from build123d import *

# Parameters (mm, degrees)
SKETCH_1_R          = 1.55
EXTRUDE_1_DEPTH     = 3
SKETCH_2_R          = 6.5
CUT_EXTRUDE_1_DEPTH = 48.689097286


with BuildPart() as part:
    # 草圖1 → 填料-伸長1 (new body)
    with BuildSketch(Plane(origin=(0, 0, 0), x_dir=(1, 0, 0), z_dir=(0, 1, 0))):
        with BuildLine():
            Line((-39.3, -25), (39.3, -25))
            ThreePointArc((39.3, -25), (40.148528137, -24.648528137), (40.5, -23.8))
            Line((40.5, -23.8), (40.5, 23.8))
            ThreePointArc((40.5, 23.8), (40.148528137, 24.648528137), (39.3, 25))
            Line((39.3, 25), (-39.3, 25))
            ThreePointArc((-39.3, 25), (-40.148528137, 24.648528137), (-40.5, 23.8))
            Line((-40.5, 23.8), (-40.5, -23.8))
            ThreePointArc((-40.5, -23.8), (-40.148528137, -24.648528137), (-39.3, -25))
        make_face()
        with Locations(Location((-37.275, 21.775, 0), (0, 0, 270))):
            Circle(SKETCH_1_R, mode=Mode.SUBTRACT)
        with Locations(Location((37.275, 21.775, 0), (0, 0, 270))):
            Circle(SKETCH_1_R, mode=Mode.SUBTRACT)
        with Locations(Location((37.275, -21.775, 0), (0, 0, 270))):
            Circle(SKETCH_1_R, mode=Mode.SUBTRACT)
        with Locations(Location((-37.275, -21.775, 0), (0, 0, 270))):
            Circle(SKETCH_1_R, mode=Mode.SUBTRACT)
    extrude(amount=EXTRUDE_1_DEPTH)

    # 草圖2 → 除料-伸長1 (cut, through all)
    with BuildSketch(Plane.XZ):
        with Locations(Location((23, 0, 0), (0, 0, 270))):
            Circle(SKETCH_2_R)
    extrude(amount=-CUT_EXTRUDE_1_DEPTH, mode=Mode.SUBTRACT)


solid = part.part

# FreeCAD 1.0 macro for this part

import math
import FreeCAD as App
import Part
import Sketcher
from FreeCAD import Vector
Q = App.Units.Quantity

doc = App.newDocument("Part")
body = doc.addObject("PartDesign::Body", "Body")

sketch1 = doc.addObject("Sketcher::SketchObject", "Sketch")
body.addObject(sketch1)
sketch1.AttachmentSupport = (doc.XZ_Plane, [""])
sketch1.MapMode = "FlatFace"
sketch1.addGeometry(Part.LineSegment(Vector(-39.3, 25, 0), Vector(39.3, 25, 0)), False)
sketch1.addGeometry(Part.ArcOfCircle(Part.Circle(Vector(39.3, 23.8, 0), Vector(0, 0, 1), 1.2), math.radians(0), math.radians(90)), False)
sketch1.addGeometry(Part.LineSegment(Vector(40.5, 23.8, 0), Vector(40.5, -23.8, 0)), False)
sketch1.addGeometry(Part.ArcOfCircle(Part.Circle(Vector(39.3, -23.8, 0), Vector(0, 0, 1), 1.2), math.radians(-90), math.radians(0)), False)
sketch1.addGeometry(Part.LineSegment(Vector(39.3, -25, 0), Vector(-39.3, -25, 0)), False)
sketch1.addGeometry(Part.ArcOfCircle(Part.Circle(Vector(-39.3, -23.8, 0), Vector(0, 0, 1), 1.2), math.radians(-180), math.radians(-90)), False)
sketch1.addGeometry(Part.LineSegment(Vector(-40.5, -23.8, 0), Vector(-40.5, 23.8, 0)), False)
sketch1.addGeometry(Part.ArcOfCircle(Part.Circle(Vector(-39.3, 23.8, 0), Vector(0, 0, 1), 1.2), math.radians(90), math.radians(180)), False)
sketch1.addGeometry(Part.Circle(Vector(-37.275, 21.775, 0), Vector(0, 0, 1), 1.55), False)
sketch1.addGeometry(Part.Circle(Vector(37.275, 21.775, 0), Vector(0, 0, 1), 1.55), False)
sketch1.addGeometry(Part.Circle(Vector(-37.275, -21.775, 0), Vector(0, 0, 1), 1.55), False)
sketch1.addGeometry(Part.Circle(Vector(37.275, -21.775, 0), Vector(0, 0, 1), 1.55), False)
sketch1.addConstraint(Sketcher.Constraint("Tangent", 0, 2, 1, 2))
sketch1.addConstraint(Sketcher.Constraint("Tangent", 1, 1, 2, 1))
sketch1.addConstraint(Sketcher.Constraint("Tangent", 2, 2, 3, 2))
sketch1.addConstraint(Sketcher.Constraint("Tangent", 3, 1, 4, 1))
sketch1.addConstraint(Sketcher.Constraint("Tangent", 4, 2, 5, 2))
sketch1.addConstraint(Sketcher.Constraint("Tangent", 5, 1, 6, 1))
sketch1.addConstraint(Sketcher.Constraint("Tangent", 6, 2, 7, 2))
sketch1.addConstraint(Sketcher.Constraint("Tangent", 7, 1, 0, 1))
sketch1.addConstraint(Sketcher.Constraint("Horizontal", 0))
sketch1.addConstraint(Sketcher.Constraint("Vertical", 2))
sketch1.addConstraint(Sketcher.Constraint("Horizontal", 4))
sketch1.addConstraint(Sketcher.Constraint("Vertical", 6))
sketch1.addConstraint(Sketcher.Constraint("Equal", 1, 3))
sketch1.addConstraint(Sketcher.Constraint("Equal", 3, 5))
sketch1.addConstraint(Sketcher.Constraint("Equal", 5, 7))
sketch1.addConstraint(Sketcher.Constraint("Equal", 8, 9))
sketch1.addConstraint(Sketcher.Constraint("Equal", 9, 10))
sketch1.addConstraint(Sketcher.Constraint("Equal", 10, 11))
sketch1.addConstraint(Sketcher.Constraint("Symmetric", 1, 3, 5, 3, -1, 1))
sketch1.addConstraint(Sketcher.Constraint("Symmetric", 9, 3, 10, 3, -1, 1))
sketch1.addConstraint(Sketcher.Constraint("Symmetric", 8, 3, 11, 3, -1, 1))
sketch1.addConstraint(Sketcher.Constraint("Symmetric", 8, 3, 9, 3, -2))
sketch1.addConstraint(Sketcher.Constraint("Diameter", 8, Q("3.1 mm")))
sketch1.addConstraint(Sketcher.Constraint("Radius", 1, Q("1.2 mm")))
sketch1.addConstraint(Sketcher.Constraint("DistanceX", 0, 1, 0, 2, Q("78.6 mm")))
sketch1.addConstraint(Sketcher.Constraint("DistanceY", 2, 2, 2, 1, Q("47.6 mm")))
sketch1.addConstraint(Sketcher.Constraint("DistanceX", 8, 3, 9, 3, Q("74.55 mm")))
sketch1.addConstraint(Sketcher.Constraint("DistanceY", 10, 3, 8, 3, Q("43.55 mm")))
pad1 = doc.addObject("PartDesign::Pad", "Pad")
body.addObject(pad1)
pad1.Profile = sketch1
pad1.Length = 3
pad1.Reversed = True

sketch2 = doc.addObject("Sketcher::SketchObject", "Sketch001")
body.addObject(sketch2)
sketch2.AttachmentSupport = (doc.XZ_Plane, [""])
sketch2.MapMode = "FlatFace"
sketch2.addGeometry(Part.Circle(Vector(23, 0, 0), Vector(0, 0, 1), 6.5), False)
sketch2.addConstraint(Sketcher.Constraint("PointOnObject", 0, 3, -1))
sketch2.addConstraint(Sketcher.Constraint("Diameter", 0, Q("13 mm")))
sketch2.addConstraint(Sketcher.Constraint("DistanceX", -1, 1, 0, 3, Q("23 mm")))
pocket1 = doc.addObject("PartDesign::Pocket", "Pocket")
body.addObject(pocket1)
pocket1.Profile = sketch2
pocket1.Type = "ThroughAll"

doc.recompute()
